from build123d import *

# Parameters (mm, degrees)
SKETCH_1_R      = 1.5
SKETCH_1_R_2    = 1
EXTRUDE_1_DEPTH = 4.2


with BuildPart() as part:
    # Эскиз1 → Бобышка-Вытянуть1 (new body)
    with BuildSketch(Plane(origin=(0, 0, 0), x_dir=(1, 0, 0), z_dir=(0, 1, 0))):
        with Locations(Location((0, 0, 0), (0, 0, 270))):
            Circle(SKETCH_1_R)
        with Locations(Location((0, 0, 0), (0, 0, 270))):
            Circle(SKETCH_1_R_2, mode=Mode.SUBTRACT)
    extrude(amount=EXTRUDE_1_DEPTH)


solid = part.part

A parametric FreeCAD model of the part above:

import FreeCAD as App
import Part
import Sketcher
from FreeCAD import Vector
Q = App.Units.Quantity

doc = App.newDocument("Part")
body = doc.addObject("PartDesign::Body", "Body")

sketch1 = body.newObject("Sketcher::SketchObject", "Sketch")
sketch1.AttachmentSupport = (doc.getObject("XZ_Plane"), [""])
sketch1.MapMode = "FlatFace"
sketch1.addGeometry([
    Part.Circle(Vector(0, 0, 0), Vector(0, 0, 1), 1.5),
    Part.Circle(Vector(0, 0, 0), Vector(0, 0, 1), 1),
], False)
sketch1.addConstraint([
    Sketcher.Constraint("Coincident", 0, 3, -1, 1),
    Sketcher.Constraint("Coincident", 1, 3, -1, 1),
    Sketcher.Constraint("Diameter", 0, Q("3 mm")),
    Sketcher.Constraint("Diameter", 1, Q("2 mm")),
])
pad1 = body.newObject("PartDesign::Pad", "Pad")
pad1.Profile = sketch1
pad1.Length = 4.2
pad1.Reversed = True

doc.recompute()
